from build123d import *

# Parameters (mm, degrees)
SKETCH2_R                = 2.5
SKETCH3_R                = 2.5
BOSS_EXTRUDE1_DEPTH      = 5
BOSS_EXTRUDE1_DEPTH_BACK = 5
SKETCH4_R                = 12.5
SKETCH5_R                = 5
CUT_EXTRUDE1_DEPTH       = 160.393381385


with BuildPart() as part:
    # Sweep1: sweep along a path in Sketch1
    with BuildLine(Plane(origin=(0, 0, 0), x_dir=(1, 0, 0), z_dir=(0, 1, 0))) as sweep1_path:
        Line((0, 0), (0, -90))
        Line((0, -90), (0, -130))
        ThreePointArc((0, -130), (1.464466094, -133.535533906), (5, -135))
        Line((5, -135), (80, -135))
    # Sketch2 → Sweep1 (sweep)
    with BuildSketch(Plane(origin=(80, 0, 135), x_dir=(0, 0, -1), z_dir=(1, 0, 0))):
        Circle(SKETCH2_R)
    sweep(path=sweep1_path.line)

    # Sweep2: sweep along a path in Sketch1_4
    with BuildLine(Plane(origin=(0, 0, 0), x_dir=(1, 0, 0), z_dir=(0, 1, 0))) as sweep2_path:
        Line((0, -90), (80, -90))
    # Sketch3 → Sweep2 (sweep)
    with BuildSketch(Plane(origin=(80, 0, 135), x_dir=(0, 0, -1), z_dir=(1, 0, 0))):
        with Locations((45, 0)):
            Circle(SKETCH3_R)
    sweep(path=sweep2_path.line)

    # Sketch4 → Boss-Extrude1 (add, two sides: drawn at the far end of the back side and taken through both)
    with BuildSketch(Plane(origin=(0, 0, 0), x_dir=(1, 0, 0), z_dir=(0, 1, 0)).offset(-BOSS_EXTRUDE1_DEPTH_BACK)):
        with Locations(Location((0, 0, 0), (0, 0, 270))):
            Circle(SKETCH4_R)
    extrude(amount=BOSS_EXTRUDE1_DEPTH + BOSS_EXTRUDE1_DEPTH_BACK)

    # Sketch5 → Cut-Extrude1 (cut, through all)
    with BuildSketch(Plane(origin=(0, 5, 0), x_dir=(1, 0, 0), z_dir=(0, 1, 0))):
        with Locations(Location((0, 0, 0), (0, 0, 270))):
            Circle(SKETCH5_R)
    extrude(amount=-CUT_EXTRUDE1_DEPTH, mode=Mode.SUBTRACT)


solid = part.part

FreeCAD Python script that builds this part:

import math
import FreeCAD as App
import Part
import Sketcher
Q = App.Units.Quantity

doc = App.newDocument("Part")
body = doc.addObject("PartDesign::Body", "Body")

sketch1 = body.newObject("Sketcher::SketchObject", "Sketch")
sketch1.AttachmentSupport = (doc.getObject("YZ_Plane"), [""])
sketch1.MapMode = "FlatFace"
sketch1.AttachmentOffset = App.Placement(App.Vector(0, 0, 80), App.Rotation())
sketch1.addGeometry(Part.Circle(App.Vector(0, 135, 0), App.Vector(0, 0, 1), 2.5), False)
sketch1.addConstraint([
    Sketcher.Constraint("PointOnObject", 0, 3, -2),
    Sketcher.Constraint("Diameter", 0, Q("5 mm")),
    Sketcher.Constraint("DistanceY", -1, 1, 0, 3, Q("135 mm")),
])

sketch2 = body.newObject("Sketcher::SketchObject", "Sketch001")
sketch2.AttachmentSupport = (doc.getObject("XZ_Plane"), [""])
sketch2.MapMode = "FlatFace"
sketch2.addGeometry([
    Part.LineSegment(App.Vector(0, 0, 0), App.Vector(0, 130, 0)),
    Part.ArcOfCircle(Part.Circle(App.Vector(5, 130, 0), App.Vector(0, 0, 1), 5), math.radians(90), math.radians(180)),
    Part.LineSegment(App.Vector(5, 135, 0), App.Vector(80, 135, 0)),
], False)
sketch2.addConstraint([
    Sketcher.Constraint("Tangent", 0, 2, 1, 2),
    Sketcher.Constraint("Tangent", 1, 1, 2, 1),
    Sketcher.Constraint("Vertical", 0),
    Sketcher.Constraint("Horizontal", 2),
    Sketcher.Constraint("Coincident", 0, 1, -1, 1),
    Sketcher.Constraint("Radius", 1, Q("5 mm")),
    Sketcher.Constraint("DistanceX", 2, 1, 2, 2, Q("75 mm")),
    Sketcher.Constraint("DistanceY", 0, 1, 0, 2, Q("130 mm")),
])
doc.recompute()

additivepipe = body.newObject("PartDesign::AdditivePipe", "AdditivePipe")
additivepipe.Profile = sketch1
additivepipe.Spine = (sketch2, ["Edge1", "Edge2", "Edge3"])

sketch3 = body.newObject("Sketcher::SketchObject", "Sketch002")
sketch3.AttachmentSupport = (doc.getObject("YZ_Plane"), [""])
sketch3.MapMode = "FlatFace"
sketch3.AttachmentOffset = App.Placement(App.Vector(0, 0, 80), App.Rotation())
sketch3.addGeometry(Part.Circle(App.Vector(0, 90, 0), App.Vector(0, 0, 1), 2.5), False)
sketch3.addConstraint([
    Sketcher.Constraint("PointOnObject", 0, 3, -2),
    Sketcher.Constraint("Diameter", 0, Q("5 mm")),
    Sketcher.Constraint("DistanceY", -1, 1, 0, 3, Q("90 mm")),
])

sketch4 = body.newObject("Sketcher::SketchObject", "Sketch003")
sketch4.AttachmentSupport = (doc.getObject("XY_Plane"), [""])
sketch4.MapMode = "FlatFace"
sketch4.AttachmentOffset = App.Placement(App.Vector(0, 0, 90), App.Rotation())
sketch4.addGeometry(Part.LineSegment(App.Vector(0, 0, 0), App.Vector(80, 0, 0)), False)
sketch4.addConstraint([
    Sketcher.Constraint("Horizontal", 0),
    Sketcher.Constraint("Coincident", 0, 1, -1, 1),
    Sketcher.Constraint("DistanceX", 0, 1, 0, 2, Q("80 mm")),
])
doc.recompute()

additivepipe2 = body.newObject("PartDesign::AdditivePipe", "AdditivePipe001")
additivepipe2.Profile = sketch3
additivepipe2.Spine = (sketch4, ["Edge1"])

sketch5 = body.newObject("Sketcher::SketchObject", "Sketch004")
sketch5.AttachmentSupport = (doc.getObject("XZ_Plane"), [""])
sketch5.MapMode = "FlatFace"
sketch5.addGeometry(Part.Circle(App.Vector(0, 0, 0), App.Vector(0, 0, 1), 12.5), False)
sketch5.addConstraint([
    Sketcher.Constraint("Coincident", 0, 3, -1, 1),
    Sketcher.Constraint("Diameter", 0, Q("25 mm")),
])
pad1 = body.newObject("PartDesign::Pad", "Pad")
pad1.Profile = sketch5
pad1.Type = "TwoLengths"
pad1.Length = 5
pad1.Length2 = 5
pad1.Reversed = True

sketch6 = body.newObject("Sketcher::SketchObject", "Sketch005")
sketch6.AttachmentSupport = (doc.getObject("XZ_Plane"), [""])
sketch6.MapMode = "FlatFace"
sketch6.AttachmentOffset = App.Placement(App.Vector(0, 0, -5), App.Rotation())
sketch6.addGeometry(Part.Circle(App.Vector(0, 0, 0), App.Vector(0, 0, 1), 5), False)
sketch6.addConstraint([
    Sketcher.Constraint("Coincident", 0, 3, -1, 1),
    Sketcher.Constraint("Diameter", 0, Q("10 mm")),
])
pocket1 = body.newObject("PartDesign::Pocket", "Pocket")
pocket1.Profile = sketch6
pocket1.Type = "ThroughAll"
pocket1.Reversed = True

doc.recompute()
